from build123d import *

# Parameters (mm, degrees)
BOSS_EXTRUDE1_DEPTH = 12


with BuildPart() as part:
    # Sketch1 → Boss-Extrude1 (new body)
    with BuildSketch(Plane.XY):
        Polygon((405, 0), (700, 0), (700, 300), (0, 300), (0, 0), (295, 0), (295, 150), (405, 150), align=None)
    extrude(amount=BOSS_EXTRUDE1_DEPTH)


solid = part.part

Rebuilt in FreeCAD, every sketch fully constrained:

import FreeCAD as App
import Part
import Sketcher
from FreeCAD import Vector

doc = App.newDocument("Part")
body = doc.addObject("PartDesign::Body", "Body")

sketch1 = doc.addObject("Sketcher::SketchObject", "Sketch")
body.addObject(sketch1)
sketch1.AttachmentSupport = (doc.XY_Plane, [""])
sketch1.MapMode = "FlatFace"
sketch1.addGeometry([
    Part.LineSegment(Vector(405, 0, 0), Vector(700, 0, 0)),
    Part.LineSegment(Vector(700, 0, 0), Vector(700, 300, 0)),
    Part.LineSegment(Vector(700, 300, 0), Vector(0, 300, 0)),
    Part.LineSegment(Vector(0, 300, 0), Vector(0, 0, 0)),
    Part.LineSegment(Vector(0, 0, 0), Vector(295, 0, 0)),
    Part.LineSegment(Vector(295, 0, 0), Vector(295, 150, 0)),
    Part.LineSegment(Vector(295, 150, 0), Vector(405, 150, 0)),
    Part.LineSegment(Vector(405, 150, 0), Vector(405, 0, 0)),
], False)
sketch1.addConstraint([
    Sketcher.Constraint("Coincident", 0, 2, 1, 1),
    Sketcher.Constraint("Coincident", 1, 2, 2, 1),
    Sketcher.Constraint("Coincident", 2, 2, 3, 1),
    Sketcher.Constraint("Coincident", 3, 2, 4, 1),
    Sketcher.Constraint("Coincident", 4, 2, 5, 1),
    Sketcher.Constraint("Coincident", 5, 2, 6, 1),
    Sketcher.Constraint("Coincident", 6, 2, 7, 1),
    Sketcher.Constraint("Coincident", 7, 2, 0, 1),
    Sketcher.Constraint("Horizontal", 0),
    Sketcher.Constraint("Vertical", 1),
    Sketcher.Constraint("Horizontal", 2),
    Sketcher.Constraint("Vertical", 3),
    Sketcher.Constraint("Horizontal", 4),
    Sketcher.Constraint("Vertical", 5),
    Sketcher.Constraint("Horizontal", 6),
    Sketcher.Constraint("Vertical", 7),
    Sketcher.Constraint("Coincident", 3, 2, -1, 1),
    Sketcher.Constraint("PointOnObject", 0, 2, -1),
    Sketcher.Constraint("Equal", 0, 4),
    Sketcher.Constraint("DistanceX", 0, 1, 0, 2, 295.0),
    Sketcher.Constraint("DistanceX", 2, 2, 2, 1, 700.0),
    Sketcher.Constraint("DistanceY", 1, 1, 1, 2, 300.0),
    Sketcher.Constraint("DistanceY", 5, 1, 5, 2, 150.0),
])
pad1 = doc.addObject("PartDesign::Pad", "Pad")
body.addObject(pad1)
pad1.Profile = sketch1
pad1.Length = 12

doc.recompute()
